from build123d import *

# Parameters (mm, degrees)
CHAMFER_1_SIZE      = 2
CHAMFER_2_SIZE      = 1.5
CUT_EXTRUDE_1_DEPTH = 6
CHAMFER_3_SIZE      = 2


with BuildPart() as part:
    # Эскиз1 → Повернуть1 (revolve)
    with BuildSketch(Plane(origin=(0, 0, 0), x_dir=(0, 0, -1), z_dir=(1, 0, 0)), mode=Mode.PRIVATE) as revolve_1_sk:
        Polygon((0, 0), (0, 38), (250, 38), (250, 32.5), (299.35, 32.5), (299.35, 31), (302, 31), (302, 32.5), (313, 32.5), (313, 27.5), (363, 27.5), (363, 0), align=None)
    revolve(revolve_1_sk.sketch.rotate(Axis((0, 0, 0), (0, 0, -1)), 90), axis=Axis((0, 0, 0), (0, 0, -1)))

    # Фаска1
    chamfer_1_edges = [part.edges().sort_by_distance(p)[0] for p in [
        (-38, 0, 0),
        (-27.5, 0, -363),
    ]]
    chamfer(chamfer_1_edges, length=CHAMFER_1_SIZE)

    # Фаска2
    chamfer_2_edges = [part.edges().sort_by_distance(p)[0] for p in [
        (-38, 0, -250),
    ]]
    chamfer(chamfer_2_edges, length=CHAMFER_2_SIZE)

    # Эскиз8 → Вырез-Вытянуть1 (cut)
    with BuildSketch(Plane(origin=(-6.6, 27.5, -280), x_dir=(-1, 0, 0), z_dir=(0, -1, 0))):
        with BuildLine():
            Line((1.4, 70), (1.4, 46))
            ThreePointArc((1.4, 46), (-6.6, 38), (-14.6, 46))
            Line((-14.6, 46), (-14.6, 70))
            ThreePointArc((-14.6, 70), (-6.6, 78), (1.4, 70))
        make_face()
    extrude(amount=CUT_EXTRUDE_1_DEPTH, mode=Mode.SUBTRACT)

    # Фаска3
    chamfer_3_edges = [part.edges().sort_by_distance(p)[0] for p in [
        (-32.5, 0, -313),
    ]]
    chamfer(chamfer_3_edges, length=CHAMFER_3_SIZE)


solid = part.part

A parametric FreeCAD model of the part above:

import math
import FreeCAD as App
import Part
import Sketcher


def edges_at(feature, points):
    """Names of the edges that pass closest to the given points."""
    edges = feature.Shape.Edges
    near = lambda p: min(range(len(edges)), key=lambda i: edges[i].distToShape(Part.Vertex(*p))[0])
    return sorted({f"Edge{near(p) + 1}" for p in points})


def add_polygon(sketch, points):
    """Adds a closed chain of lines whose ends are joined by coincident constraints."""
    first, n = sketch.GeometryCount, len(points)
    for a, b in zip(points, points[1:] + points[:1]):
        sketch.addGeometry(Part.LineSegment(App.Vector(*a, 0), App.Vector(*b, 0)), False)
    for i in range(n):
        sketch.addConstraint(Sketcher.Constraint("Coincident", first + i, 2, first + (i + 1) % n, 1))

doc = App.newDocument("Part")
body = doc.addObject("PartDesign::Body", "Body")

# Sketch on YZ plane
sketch1 = body.newObject("Sketcher::SketchObject", "Sketch")
sketch1.AttachmentSupport = (doc.getObject("YZ_Plane"), [""])
sketch1.MapMode = "FlatFace"
add_polygon(sketch1, [(38, 0), (0, 0), (0, -363), (27.5, -363), (27.5, -313), (32.5, -313), (32.5, -302), (31, -302), (31, -299.4), (32.5, -299.4), (32.5, -250), (38, -250)])  # lines 0-11
sketch1.addConstraint(Sketcher.Constraint("Horizontal", 0))
sketch1.addConstraint(Sketcher.Constraint("Vertical", 1))
sketch1.addConstraint(Sketcher.Constraint("Horizontal", 2))
sketch1.addConstraint(Sketcher.Constraint("Vertical", 3))
sketch1.addConstraint(Sketcher.Constraint("Horizontal", 4))
sketch1.addConstraint(Sketcher.Constraint("Vertical", 5))
sketch1.addConstraint(Sketcher.Constraint("Horizontal", 6))
sketch1.addConstraint(Sketcher.Constraint("Vertical", 7))
sketch1.addConstraint(Sketcher.Constraint("Horizontal", 8))
sketch1.addConstraint(Sketcher.Constraint("Vertical", 9))
sketch1.addConstraint(Sketcher.Constraint("Horizontal", 10))
sketch1.addConstraint(Sketcher.Constraint("Vertical", 11))
sketch1.addConstraint(Sketcher.Constraint("Coincident", 0, 2, -1, 1))
sketch1.addConstraint(Sketcher.Constraint("Vertical", 5, 2, 8, 2))
sketch1.addConstraint(Sketcher.Constraint("DistanceX", 0, 2, 0, 1, 38.0))
sketch1.addConstraint(Sketcher.Constraint("DistanceX", 4, 1, 4, 2, 5.0))
sketch1.addConstraint(Sketcher.Constraint("DistanceY", 1, 2, 1, 1, 363.0))
sketch1.addConstraint(Sketcher.Constraint("DistanceY", 3, 1, 3, 2, 50.0))
sketch1.addConstraint(Sketcher.Constraint("DistanceY", 5, 1, 5, 2, 11.0))
sketch1.addConstraint(Sketcher.Constraint("DistanceY", 11, 1, 11, 2, 250.0))
sketch1.addConstraint(Sketcher.Constraint("DistanceX", 2, 1, 2, 2, 27.5))
sketch1.addConstraint(Sketcher.Constraint("DistanceX", 6, 2, 6, 1, 1.5))
sketch1.addConstraint(Sketcher.Constraint("DistanceY", 7, 1, 7, 2, 2.65))
revolution = body.newObject("PartDesign::Revolution", "Revolution")
revolution.Profile = sketch1
revolution.ReferenceAxis = (sketch1, ["V_Axis"])
revolution.Angle = 360
doc.recompute()

chamfer = body.newObject("PartDesign::Chamfer", "Chamfer")
chamfer.Base = (revolution, edges_at(revolution, [(-38, 0, 0), (-27.5, 0, -363)]))
chamfer.Size = 2
doc.recompute()

chamfer2 = body.newObject("PartDesign::Chamfer", "Chamfer001")
chamfer2.Base = (chamfer, edges_at(chamfer, [(-38, 0, -250)]))
chamfer2.Size = 1.5

# Sketch on XZ plane
sketch2 = body.newObject("Sketcher::SketchObject", "Sketch001")
sketch2.AttachmentSupport = (doc.getObject("XZ_Plane"), [""])
sketch2.MapMode = "FlatFace"
sketch2.AttachmentOffset = App.Placement(App.Vector(0, 0, -27.5), App.Rotation())
sketch2.addGeometry(Part.LineSegment(App.Vector(-8, -326, 0), App.Vector(-8, -350, 0)), False)
sketch2.addGeometry(Part.ArcOfCircle(Part.Circle(App.Vector(0, -350, 0), App.Vector(0, 0, 1), 8), math.radians(180), math.radians(360)), False)
sketch2.addGeometry(Part.LineSegment(App.Vector(8, -350, 0), App.Vector(8, -326, 0)), False)
sketch2.addGeometry(Part.ArcOfCircle(Part.Circle(App.Vector(0, -326, 0), App.Vector(0, 0, 1), 8), math.radians(0), math.radians(180)), False)
sketch2.addConstraint(Sketcher.Constraint("Tangent", 0, 2, 1, 1))
sketch2.addConstraint(Sketcher.Constraint("Tangent", 1, 2, 2, 1))
sketch2.addConstraint(Sketcher.Constraint("Tangent", 2, 2, 3, 1))
sketch2.addConstraint(Sketcher.Constraint("Tangent", 3, 2, 0, 1))
sketch2.addConstraint(Sketcher.Constraint("Vertical", 0))
sketch2.addConstraint(Sketcher.Constraint("Vertical", 2))
sketch2.addConstraint(Sketcher.Constraint("PointOnObject", 1, 3, -2))
sketch2.addConstraint(Sketcher.Constraint("Radius", 1, 8.0))
sketch2.addConstraint(Sketcher.Constraint("DistanceY", 0, 2, 0, 1, 24.0))
sketch2.addConstraint(Sketcher.Constraint("DistanceY", 1, 3, -1, 1, 350.0))
pocket1 = body.newObject("PartDesign::Pocket", "Pocket")
pocket1.Profile = sketch2
pocket1.Length = 6
pocket1.Reversed = True
doc.recompute()

chamfer3 = body.newObject("PartDesign::Chamfer", "Chamfer002")
chamfer3.Base = (pocket1, edges_at(pocket1, [(-32.5, 0, -313)]))
chamfer3.Size = 2

doc.recompute()
